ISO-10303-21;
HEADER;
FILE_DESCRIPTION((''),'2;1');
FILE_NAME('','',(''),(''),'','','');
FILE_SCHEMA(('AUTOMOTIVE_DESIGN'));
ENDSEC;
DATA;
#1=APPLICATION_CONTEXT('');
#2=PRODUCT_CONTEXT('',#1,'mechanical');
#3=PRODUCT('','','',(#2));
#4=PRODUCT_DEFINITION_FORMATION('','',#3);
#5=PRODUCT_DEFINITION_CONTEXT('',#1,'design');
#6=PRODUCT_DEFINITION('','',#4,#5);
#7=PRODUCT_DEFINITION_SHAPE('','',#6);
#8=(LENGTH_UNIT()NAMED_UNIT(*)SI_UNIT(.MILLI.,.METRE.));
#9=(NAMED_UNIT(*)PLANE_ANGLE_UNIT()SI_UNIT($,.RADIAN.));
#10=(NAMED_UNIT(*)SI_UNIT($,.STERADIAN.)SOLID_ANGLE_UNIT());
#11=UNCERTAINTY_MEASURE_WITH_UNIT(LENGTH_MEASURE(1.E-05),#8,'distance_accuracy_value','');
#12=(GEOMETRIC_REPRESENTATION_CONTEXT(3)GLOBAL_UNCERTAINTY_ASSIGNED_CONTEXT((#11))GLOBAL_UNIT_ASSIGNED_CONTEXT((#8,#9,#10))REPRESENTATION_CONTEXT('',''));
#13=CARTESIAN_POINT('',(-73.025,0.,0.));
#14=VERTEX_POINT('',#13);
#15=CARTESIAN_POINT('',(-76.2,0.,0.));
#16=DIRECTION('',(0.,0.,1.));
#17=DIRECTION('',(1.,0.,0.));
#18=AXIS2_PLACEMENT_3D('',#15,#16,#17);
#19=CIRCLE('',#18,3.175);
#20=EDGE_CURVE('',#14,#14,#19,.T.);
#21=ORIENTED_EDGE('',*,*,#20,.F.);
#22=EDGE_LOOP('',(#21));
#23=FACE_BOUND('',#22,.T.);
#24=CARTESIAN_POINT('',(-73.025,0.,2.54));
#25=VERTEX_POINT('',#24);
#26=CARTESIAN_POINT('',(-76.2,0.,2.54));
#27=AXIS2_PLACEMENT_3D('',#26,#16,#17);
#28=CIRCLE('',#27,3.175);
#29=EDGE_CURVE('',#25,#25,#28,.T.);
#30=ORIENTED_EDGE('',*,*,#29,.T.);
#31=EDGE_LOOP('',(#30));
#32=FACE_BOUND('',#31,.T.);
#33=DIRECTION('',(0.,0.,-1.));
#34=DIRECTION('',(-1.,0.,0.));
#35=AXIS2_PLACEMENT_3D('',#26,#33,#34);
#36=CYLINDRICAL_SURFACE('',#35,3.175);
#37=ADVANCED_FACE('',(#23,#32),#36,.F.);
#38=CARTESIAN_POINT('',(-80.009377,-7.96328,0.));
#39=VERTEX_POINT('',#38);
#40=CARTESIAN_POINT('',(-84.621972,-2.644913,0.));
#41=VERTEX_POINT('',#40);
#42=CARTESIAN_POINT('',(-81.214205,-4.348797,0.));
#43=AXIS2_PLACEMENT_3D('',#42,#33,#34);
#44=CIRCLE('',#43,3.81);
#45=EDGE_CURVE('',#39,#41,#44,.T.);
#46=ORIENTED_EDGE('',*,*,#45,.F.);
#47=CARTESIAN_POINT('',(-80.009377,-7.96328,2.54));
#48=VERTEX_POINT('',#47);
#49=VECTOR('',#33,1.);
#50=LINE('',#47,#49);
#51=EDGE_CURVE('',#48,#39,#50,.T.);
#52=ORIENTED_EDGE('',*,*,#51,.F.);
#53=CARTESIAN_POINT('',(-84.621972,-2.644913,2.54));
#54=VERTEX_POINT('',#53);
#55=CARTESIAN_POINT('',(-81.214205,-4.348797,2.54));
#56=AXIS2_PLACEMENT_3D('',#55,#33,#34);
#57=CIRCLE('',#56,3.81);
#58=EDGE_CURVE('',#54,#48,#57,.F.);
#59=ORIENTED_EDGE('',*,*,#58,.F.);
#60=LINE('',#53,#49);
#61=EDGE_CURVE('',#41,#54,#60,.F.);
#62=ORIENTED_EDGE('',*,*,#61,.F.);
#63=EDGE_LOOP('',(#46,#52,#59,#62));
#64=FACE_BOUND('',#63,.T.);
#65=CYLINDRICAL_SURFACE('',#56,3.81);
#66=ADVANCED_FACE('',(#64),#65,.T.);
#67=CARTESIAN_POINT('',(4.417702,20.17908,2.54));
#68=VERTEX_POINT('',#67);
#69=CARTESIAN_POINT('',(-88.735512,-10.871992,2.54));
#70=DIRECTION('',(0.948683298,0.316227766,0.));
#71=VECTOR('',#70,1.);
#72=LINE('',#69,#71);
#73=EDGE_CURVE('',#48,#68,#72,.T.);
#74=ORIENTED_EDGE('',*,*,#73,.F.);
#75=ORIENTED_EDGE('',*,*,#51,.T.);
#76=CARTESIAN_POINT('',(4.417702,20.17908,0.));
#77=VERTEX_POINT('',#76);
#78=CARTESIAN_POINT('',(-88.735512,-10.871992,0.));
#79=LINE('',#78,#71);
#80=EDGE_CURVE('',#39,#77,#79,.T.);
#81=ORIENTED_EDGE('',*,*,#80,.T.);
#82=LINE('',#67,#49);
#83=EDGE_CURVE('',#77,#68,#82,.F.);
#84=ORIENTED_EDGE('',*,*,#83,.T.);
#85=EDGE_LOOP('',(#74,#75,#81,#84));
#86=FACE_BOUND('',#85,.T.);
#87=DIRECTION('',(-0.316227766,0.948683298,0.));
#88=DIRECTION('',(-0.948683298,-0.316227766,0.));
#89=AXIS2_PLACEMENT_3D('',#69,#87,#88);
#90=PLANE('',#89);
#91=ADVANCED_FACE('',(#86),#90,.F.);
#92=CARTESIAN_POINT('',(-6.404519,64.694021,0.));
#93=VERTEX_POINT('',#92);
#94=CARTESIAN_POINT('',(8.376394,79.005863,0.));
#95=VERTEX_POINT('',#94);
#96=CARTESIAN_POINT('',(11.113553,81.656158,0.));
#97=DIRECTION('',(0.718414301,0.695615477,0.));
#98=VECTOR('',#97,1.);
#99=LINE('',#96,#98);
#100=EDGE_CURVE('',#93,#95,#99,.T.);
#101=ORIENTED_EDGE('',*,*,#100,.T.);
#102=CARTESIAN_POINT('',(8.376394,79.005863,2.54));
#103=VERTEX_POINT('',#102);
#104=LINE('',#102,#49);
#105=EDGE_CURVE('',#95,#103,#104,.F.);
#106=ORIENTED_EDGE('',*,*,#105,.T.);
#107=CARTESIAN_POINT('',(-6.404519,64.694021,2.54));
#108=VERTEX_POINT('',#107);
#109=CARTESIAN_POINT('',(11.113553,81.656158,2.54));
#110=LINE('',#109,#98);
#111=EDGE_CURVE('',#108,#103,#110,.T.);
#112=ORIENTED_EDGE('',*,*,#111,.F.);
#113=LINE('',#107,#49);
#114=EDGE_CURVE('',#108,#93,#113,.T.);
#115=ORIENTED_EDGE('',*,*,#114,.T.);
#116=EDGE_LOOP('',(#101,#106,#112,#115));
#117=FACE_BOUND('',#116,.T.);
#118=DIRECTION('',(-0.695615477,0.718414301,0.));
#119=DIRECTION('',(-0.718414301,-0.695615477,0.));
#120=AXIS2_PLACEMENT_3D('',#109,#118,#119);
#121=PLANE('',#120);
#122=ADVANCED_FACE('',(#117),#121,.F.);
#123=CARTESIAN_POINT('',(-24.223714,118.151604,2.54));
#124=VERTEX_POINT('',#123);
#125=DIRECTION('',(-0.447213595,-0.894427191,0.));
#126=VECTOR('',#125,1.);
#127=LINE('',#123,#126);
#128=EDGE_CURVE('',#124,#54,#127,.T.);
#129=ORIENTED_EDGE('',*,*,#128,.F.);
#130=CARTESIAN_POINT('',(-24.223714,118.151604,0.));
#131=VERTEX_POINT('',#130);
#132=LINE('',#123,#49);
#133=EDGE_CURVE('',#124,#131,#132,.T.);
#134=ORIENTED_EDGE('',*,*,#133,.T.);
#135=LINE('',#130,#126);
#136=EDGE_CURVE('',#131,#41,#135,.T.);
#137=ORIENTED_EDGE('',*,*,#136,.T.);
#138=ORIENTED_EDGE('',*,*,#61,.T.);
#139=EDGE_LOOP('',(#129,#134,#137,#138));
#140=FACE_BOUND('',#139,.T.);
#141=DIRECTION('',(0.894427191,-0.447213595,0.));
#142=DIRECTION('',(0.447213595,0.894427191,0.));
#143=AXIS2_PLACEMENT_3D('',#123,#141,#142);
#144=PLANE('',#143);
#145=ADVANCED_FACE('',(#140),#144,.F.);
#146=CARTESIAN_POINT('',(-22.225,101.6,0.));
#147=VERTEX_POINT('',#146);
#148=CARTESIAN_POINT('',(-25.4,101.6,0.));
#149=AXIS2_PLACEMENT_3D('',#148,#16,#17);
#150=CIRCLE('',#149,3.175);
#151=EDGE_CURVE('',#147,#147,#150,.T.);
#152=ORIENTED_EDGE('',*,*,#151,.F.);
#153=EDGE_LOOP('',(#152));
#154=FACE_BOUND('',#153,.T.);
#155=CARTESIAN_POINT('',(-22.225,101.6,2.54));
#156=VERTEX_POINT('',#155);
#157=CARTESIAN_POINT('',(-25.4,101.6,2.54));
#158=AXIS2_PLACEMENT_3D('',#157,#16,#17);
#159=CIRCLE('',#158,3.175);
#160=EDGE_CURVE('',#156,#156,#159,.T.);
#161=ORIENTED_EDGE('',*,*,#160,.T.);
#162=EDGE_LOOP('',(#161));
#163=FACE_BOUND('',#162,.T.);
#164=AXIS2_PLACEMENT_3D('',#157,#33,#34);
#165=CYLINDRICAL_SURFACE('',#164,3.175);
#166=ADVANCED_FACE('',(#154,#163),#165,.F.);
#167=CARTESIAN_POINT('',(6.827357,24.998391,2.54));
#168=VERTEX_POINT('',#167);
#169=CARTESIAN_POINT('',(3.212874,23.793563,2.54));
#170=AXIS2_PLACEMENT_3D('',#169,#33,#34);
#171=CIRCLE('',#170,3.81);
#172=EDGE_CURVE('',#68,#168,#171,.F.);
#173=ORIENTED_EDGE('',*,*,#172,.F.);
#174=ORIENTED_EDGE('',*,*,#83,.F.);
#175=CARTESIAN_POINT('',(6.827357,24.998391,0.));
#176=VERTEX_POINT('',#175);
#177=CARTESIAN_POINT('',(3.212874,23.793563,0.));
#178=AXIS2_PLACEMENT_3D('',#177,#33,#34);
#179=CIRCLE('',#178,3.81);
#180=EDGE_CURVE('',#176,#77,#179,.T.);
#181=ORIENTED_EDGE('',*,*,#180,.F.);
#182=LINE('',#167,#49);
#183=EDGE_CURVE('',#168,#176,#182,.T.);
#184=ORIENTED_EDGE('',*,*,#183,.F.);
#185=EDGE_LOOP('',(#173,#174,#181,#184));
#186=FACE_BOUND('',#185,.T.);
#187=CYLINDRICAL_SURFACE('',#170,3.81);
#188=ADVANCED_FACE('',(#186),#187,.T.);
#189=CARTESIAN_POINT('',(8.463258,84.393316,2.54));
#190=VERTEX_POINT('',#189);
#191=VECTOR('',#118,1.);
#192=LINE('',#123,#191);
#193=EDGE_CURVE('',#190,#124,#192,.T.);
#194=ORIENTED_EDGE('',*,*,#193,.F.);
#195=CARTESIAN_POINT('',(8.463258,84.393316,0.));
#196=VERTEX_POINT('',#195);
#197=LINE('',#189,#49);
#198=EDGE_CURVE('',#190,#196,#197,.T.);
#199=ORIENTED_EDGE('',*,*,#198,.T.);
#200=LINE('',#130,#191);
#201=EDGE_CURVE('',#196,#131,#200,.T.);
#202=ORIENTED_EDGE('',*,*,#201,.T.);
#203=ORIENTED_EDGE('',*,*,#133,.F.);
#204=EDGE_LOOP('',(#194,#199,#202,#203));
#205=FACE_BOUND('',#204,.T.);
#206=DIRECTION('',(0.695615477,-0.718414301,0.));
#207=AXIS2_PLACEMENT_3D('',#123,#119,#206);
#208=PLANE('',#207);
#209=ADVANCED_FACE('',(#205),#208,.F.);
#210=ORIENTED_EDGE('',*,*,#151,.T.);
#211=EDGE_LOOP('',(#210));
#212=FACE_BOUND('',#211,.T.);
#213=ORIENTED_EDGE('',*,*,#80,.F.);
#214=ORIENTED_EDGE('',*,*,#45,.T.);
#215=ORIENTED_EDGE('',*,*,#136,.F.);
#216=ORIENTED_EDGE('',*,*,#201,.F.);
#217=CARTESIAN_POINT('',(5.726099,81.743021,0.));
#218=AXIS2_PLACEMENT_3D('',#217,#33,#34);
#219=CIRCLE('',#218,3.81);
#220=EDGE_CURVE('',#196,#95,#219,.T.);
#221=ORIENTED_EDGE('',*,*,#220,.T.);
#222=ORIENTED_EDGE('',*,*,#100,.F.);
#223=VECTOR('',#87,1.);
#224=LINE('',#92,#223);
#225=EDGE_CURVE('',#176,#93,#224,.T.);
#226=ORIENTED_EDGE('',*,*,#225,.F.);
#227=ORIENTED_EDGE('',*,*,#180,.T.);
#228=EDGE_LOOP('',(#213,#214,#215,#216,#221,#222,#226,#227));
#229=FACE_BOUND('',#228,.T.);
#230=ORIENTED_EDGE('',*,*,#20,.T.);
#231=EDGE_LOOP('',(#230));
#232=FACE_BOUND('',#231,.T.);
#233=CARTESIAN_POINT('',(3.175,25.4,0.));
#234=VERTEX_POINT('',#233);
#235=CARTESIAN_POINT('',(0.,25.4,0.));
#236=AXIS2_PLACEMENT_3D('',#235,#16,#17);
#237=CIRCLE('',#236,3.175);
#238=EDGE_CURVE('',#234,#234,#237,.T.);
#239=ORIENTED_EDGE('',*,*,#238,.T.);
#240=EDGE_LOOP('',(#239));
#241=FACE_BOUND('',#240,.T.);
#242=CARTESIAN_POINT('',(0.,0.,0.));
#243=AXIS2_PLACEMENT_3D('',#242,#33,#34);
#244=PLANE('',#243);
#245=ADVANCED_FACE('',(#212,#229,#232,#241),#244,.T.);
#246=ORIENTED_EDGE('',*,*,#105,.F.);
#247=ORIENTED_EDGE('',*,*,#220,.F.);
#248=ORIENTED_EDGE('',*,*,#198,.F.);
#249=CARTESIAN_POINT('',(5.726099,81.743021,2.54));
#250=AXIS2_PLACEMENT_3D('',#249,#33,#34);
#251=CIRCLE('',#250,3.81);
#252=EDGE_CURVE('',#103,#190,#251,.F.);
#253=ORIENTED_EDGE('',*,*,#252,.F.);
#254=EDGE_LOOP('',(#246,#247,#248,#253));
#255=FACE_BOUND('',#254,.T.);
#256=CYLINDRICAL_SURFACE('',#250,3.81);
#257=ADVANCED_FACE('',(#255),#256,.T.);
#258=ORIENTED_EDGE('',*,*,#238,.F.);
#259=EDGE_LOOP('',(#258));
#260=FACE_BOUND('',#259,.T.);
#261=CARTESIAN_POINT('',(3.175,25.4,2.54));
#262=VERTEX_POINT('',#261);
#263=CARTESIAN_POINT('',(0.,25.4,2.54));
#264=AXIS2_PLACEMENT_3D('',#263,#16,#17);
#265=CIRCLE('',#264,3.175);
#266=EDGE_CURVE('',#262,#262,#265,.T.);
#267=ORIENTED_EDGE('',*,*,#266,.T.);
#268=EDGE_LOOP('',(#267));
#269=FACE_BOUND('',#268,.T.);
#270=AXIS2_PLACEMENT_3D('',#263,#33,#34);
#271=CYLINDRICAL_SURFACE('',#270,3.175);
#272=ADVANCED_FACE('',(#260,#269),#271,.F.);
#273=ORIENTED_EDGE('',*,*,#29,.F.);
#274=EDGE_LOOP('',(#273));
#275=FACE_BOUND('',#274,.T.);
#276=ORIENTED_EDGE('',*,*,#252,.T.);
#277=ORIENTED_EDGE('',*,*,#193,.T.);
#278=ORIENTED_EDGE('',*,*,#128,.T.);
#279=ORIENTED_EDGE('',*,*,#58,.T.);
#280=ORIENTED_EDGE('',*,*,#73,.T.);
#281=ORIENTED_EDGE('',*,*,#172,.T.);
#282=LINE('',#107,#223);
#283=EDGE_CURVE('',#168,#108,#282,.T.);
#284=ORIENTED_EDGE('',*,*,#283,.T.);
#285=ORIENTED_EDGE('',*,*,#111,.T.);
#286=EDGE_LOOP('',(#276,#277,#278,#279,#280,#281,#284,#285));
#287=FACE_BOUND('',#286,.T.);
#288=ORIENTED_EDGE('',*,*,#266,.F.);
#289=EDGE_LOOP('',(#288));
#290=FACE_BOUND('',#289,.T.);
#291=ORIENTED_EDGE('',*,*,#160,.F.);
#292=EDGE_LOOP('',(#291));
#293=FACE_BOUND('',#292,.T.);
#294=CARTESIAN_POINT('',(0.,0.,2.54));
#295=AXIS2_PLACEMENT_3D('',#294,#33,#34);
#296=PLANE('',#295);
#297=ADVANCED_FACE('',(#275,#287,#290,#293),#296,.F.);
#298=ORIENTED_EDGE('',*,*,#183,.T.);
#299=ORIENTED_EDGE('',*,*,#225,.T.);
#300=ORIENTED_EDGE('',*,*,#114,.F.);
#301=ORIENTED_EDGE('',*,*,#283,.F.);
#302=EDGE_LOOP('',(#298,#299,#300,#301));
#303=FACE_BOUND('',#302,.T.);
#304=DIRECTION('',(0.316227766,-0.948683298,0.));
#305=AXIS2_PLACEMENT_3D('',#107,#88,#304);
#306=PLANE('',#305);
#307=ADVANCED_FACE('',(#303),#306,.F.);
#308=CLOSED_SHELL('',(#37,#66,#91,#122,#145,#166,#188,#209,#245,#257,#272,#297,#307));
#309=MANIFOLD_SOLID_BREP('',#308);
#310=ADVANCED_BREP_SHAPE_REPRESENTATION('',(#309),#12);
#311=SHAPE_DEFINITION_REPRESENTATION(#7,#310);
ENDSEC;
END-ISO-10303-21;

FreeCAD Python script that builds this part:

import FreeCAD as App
import Part
import Sketcher
Q = App.Units.Quantity


def edges_at(feature, points):
    """Names of the edges that pass closest to the given points."""
    edges = feature.Shape.Edges
    near = lambda p: min(range(len(edges)), key=lambda i: edges[i].distToShape(Part.Vertex(*p))[0])
    return sorted({f"Edge{near(p) + 1}" for p in points})


def add_polygon(sketch, points):
    """Adds a closed chain of lines whose ends are joined by coincident constraints."""
    first, n = sketch.GeometryCount, len(points)
    for a, b in zip(points, points[1:] + points[:1]):
        sketch.addGeometry(Part.LineSegment(App.Vector(*a, 0), App.Vector(*b, 0)), False)
    for i in range(n):
        sketch.addConstraint(Sketcher.Constraint("Coincident", first + i, 2, first + (i + 1) % n, 1))

doc = App.newDocument("Part")
body = doc.addObject("PartDesign::Body", "Body")

sketch1 = body.newObject("Sketcher::SketchObject", "Sketch")
sketch1.AttachmentSupport = (doc.getObject("XY_Plane"), [""])
sketch1.MapMode = "FlatFace"
add_polygon(sketch1, [(-24.2, 118.2), (-88.7, -10.9), (8, 21.4), (-6.4, 64.7), (11.1, 81.7)])
sketch1.addGeometry(Part.Circle(App.Vector(-76.2, 0, 0), App.Vector(0, 0, 1), 3.2), False)
sketch1.addGeometry(Part.Circle(App.Vector(0, 25.4, 0), App.Vector(0, 0, 1), 3.2), False)
sketch1.addGeometry(Part.Circle(App.Vector(-25.4, 101.6, 0), App.Vector(0, 0, 1), 3.2), False)
sketch1.addConstraint([
    Sketcher.Constraint("Equal", 5, 6),
    Sketcher.Constraint("Equal", 6, 7),
    Sketcher.Constraint("PointOnObject", 5, 3, -1),
    Sketcher.Constraint("PointOnObject", 6, 3, -2),
    Sketcher.Constraint("Perpendicular", 1, 2),
    Sketcher.Constraint("Perpendicular", 3, 4),
    Sketcher.Constraint("Diameter", 5, Q("0.25 in")),
    Sketcher.Constraint("Distance", 4, Q("2 in")),
    Sketcher.Constraint("DistanceX", 5, 3, -1, 1, Q("3 in")),
    Sketcher.Constraint("DistanceY", -1, 1, 6, 3, Q("1 in")),
    Sketcher.Constraint("DistanceX", 7, 3, -1, 1, Q("1 in")),
    Sketcher.Constraint("DistanceY", -1, 1, 7, 3, Q("4 in")),
    Sketcher.Constraint("DistanceY", 0, 2, 1, 2, 32.255899),
    Sketcher.Constraint("DistanceX", 4, 2, 1, 2, 32.255899),
    Sketcher.Constraint("Distance", 1, 102.002109),
    Sketcher.Constraint("Distance", 3, 24.384358),
    Sketcher.Constraint("DistanceX", 0, 2, -1, 1, 88.735512),
    Sketcher.Constraint("DistanceY", 0, 2, -1, 1, 10.871992),
    Sketcher.Constraint("DistanceX", 2, 2, -1, 1, 6.404519),
])
pad1 = body.newObject("PartDesign::Pad", "Pad")
pad1.Profile = sketch1
pad1.Length = Q("0.1 in")
doc.recompute()

fillet = body.newObject("PartDesign::Fillet", "Fillet")
fillet.Base = (pad1, edges_at(pad1, [(11.114, 81.656, 1.27), (8.032, 21.384, 1.27), (-88.736, -10.872, 1.27)]))
fillet.Radius = Q("0.15 in")

doc.recompute()
